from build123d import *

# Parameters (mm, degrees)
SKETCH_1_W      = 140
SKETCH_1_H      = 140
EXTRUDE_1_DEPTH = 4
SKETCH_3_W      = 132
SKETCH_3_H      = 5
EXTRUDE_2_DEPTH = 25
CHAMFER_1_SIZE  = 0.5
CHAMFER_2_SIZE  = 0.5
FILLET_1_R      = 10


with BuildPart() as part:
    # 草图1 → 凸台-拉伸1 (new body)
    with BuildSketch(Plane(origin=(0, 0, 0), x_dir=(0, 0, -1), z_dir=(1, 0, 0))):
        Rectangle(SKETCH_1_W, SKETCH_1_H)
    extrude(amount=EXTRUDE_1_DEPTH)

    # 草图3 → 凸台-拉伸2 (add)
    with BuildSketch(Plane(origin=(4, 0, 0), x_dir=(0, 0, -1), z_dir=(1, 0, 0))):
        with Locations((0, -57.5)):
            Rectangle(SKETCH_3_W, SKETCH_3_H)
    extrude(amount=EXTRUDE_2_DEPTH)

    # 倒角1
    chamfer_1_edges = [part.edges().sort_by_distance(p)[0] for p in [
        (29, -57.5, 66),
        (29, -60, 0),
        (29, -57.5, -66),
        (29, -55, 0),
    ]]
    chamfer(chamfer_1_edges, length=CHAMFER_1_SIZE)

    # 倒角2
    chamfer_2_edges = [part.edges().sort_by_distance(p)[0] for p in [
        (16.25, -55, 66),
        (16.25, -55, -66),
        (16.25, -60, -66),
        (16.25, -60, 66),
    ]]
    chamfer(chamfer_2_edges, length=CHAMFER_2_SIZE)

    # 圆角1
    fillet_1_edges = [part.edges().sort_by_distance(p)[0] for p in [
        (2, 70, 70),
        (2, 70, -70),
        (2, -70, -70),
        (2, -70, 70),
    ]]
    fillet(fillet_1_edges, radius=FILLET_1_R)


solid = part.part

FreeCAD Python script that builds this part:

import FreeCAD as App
import Part
import Sketcher
from FreeCAD import Vector


def edges_at(feature, points):
    """Names of the edges that pass closest to the given points."""
    edges = feature.Shape.Edges
    near = lambda p: min(range(len(edges)), key=lambda i: edges[i].distToShape(Part.Vertex(*p))[0])
    return sorted({f"Edge{near(p) + 1}" for p in points})


def add_polygon(sketch, points):
    """Adds a closed chain of lines whose ends are joined by coincident constraints."""
    first, n = sketch.GeometryCount, len(points)
    for a, b in zip(points, points[1:] + points[:1]):
        sketch.addGeometry(Part.LineSegment(App.Vector(*a, 0), App.Vector(*b, 0)), False)
    for i in range(n):
        sketch.addConstraint(Sketcher.Constraint("Coincident", first + i, 2, first + (i + 1) % n, 1))

doc = App.newDocument("Part")
body = doc.addObject("PartDesign::Body", "Body")

sketch1 = body.newObject("Sketcher::SketchObject", "Sketch")
sketch1.AttachmentSupport = (doc.getObject("YZ_Plane"), [""])
sketch1.MapMode = "FlatFace"
add_polygon(sketch1, [(70, 70), (-70, 70), (-70, -70), (70, -70)])
sketch1.addConstraint([
    Sketcher.Constraint("Horizontal", 0),
    Sketcher.Constraint("Vertical", 1),
    Sketcher.Constraint("Horizontal", 2),
    Sketcher.Constraint("Vertical", 3),
    Sketcher.Constraint("Symmetric", 0, 2, 2, 2, -1, 1),
    Sketcher.Constraint("Equal", 2, 1),
    Sketcher.Constraint("DistanceX", 0, 2, 0, 1, 140.0),
])
pad1 = body.newObject("PartDesign::Pad", "Pad")
pad1.Profile = sketch1
pad1.Length = 4

sketch2 = body.newObject("Sketcher::SketchObject", "Sketch001")
sketch2.AttachmentSupport = (doc.getObject("YZ_Plane"), [""])
sketch2.MapMode = "FlatFace"
sketch2.AttachmentOffset = App.Placement(Vector(0, 0, 4), App.Rotation())
add_polygon(sketch2, [(-55, 66), (-60, 66), (-60, -66), (-55, -66)])
sketch2.addConstraint([
    Sketcher.Constraint("Horizontal", 0),
    Sketcher.Constraint("Vertical", 1),
    Sketcher.Constraint("Horizontal", 2),
    Sketcher.Constraint("Vertical", 3),
    Sketcher.Constraint("DistanceX", 0, 2, 0, 1, 5.0),
    Sketcher.Constraint("DistanceY", 1, 2, 1, 1, 132.0),
    Sketcher.Constraint("DistanceX", 0, 2, -1, 1, 60.0),
    Sketcher.Constraint("DistanceY", -1, 1, 0, 2, 66.0),
])
pad2 = body.newObject("PartDesign::Pad", "Pad001")
pad2.Profile = sketch2
pad2.Length = 25
doc.recompute()

chamfer = body.newObject("PartDesign::Chamfer", "Chamfer")
chamfer.Base = (pad2, edges_at(pad2, [
    (29, -57.5, 66),
    (29, -60, 0),
    (29, -57.5, -66),
    (29, -55, 0),
]))
chamfer.Size = 0.5
doc.recompute()

chamfer2 = body.newObject("PartDesign::Chamfer", "Chamfer001")
chamfer2.Base = (chamfer, edges_at(chamfer, [
    (16.25, -55, 66),
    (16.25, -55, -66),
    (16.25, -60, -66),
    (16.25, -60, 66),
]))
chamfer2.Size = 0.5
doc.recompute()

fillet = body.newObject("PartDesign::Fillet", "Fillet")
fillet.Base = (chamfer2, edges_at(chamfer2, [
    (2, 70, 70),
    (2, 70, -70),
    (2, -70, -70),
    (2, -70, 70),
]))
fillet.Radius = 10

doc.recompute()
